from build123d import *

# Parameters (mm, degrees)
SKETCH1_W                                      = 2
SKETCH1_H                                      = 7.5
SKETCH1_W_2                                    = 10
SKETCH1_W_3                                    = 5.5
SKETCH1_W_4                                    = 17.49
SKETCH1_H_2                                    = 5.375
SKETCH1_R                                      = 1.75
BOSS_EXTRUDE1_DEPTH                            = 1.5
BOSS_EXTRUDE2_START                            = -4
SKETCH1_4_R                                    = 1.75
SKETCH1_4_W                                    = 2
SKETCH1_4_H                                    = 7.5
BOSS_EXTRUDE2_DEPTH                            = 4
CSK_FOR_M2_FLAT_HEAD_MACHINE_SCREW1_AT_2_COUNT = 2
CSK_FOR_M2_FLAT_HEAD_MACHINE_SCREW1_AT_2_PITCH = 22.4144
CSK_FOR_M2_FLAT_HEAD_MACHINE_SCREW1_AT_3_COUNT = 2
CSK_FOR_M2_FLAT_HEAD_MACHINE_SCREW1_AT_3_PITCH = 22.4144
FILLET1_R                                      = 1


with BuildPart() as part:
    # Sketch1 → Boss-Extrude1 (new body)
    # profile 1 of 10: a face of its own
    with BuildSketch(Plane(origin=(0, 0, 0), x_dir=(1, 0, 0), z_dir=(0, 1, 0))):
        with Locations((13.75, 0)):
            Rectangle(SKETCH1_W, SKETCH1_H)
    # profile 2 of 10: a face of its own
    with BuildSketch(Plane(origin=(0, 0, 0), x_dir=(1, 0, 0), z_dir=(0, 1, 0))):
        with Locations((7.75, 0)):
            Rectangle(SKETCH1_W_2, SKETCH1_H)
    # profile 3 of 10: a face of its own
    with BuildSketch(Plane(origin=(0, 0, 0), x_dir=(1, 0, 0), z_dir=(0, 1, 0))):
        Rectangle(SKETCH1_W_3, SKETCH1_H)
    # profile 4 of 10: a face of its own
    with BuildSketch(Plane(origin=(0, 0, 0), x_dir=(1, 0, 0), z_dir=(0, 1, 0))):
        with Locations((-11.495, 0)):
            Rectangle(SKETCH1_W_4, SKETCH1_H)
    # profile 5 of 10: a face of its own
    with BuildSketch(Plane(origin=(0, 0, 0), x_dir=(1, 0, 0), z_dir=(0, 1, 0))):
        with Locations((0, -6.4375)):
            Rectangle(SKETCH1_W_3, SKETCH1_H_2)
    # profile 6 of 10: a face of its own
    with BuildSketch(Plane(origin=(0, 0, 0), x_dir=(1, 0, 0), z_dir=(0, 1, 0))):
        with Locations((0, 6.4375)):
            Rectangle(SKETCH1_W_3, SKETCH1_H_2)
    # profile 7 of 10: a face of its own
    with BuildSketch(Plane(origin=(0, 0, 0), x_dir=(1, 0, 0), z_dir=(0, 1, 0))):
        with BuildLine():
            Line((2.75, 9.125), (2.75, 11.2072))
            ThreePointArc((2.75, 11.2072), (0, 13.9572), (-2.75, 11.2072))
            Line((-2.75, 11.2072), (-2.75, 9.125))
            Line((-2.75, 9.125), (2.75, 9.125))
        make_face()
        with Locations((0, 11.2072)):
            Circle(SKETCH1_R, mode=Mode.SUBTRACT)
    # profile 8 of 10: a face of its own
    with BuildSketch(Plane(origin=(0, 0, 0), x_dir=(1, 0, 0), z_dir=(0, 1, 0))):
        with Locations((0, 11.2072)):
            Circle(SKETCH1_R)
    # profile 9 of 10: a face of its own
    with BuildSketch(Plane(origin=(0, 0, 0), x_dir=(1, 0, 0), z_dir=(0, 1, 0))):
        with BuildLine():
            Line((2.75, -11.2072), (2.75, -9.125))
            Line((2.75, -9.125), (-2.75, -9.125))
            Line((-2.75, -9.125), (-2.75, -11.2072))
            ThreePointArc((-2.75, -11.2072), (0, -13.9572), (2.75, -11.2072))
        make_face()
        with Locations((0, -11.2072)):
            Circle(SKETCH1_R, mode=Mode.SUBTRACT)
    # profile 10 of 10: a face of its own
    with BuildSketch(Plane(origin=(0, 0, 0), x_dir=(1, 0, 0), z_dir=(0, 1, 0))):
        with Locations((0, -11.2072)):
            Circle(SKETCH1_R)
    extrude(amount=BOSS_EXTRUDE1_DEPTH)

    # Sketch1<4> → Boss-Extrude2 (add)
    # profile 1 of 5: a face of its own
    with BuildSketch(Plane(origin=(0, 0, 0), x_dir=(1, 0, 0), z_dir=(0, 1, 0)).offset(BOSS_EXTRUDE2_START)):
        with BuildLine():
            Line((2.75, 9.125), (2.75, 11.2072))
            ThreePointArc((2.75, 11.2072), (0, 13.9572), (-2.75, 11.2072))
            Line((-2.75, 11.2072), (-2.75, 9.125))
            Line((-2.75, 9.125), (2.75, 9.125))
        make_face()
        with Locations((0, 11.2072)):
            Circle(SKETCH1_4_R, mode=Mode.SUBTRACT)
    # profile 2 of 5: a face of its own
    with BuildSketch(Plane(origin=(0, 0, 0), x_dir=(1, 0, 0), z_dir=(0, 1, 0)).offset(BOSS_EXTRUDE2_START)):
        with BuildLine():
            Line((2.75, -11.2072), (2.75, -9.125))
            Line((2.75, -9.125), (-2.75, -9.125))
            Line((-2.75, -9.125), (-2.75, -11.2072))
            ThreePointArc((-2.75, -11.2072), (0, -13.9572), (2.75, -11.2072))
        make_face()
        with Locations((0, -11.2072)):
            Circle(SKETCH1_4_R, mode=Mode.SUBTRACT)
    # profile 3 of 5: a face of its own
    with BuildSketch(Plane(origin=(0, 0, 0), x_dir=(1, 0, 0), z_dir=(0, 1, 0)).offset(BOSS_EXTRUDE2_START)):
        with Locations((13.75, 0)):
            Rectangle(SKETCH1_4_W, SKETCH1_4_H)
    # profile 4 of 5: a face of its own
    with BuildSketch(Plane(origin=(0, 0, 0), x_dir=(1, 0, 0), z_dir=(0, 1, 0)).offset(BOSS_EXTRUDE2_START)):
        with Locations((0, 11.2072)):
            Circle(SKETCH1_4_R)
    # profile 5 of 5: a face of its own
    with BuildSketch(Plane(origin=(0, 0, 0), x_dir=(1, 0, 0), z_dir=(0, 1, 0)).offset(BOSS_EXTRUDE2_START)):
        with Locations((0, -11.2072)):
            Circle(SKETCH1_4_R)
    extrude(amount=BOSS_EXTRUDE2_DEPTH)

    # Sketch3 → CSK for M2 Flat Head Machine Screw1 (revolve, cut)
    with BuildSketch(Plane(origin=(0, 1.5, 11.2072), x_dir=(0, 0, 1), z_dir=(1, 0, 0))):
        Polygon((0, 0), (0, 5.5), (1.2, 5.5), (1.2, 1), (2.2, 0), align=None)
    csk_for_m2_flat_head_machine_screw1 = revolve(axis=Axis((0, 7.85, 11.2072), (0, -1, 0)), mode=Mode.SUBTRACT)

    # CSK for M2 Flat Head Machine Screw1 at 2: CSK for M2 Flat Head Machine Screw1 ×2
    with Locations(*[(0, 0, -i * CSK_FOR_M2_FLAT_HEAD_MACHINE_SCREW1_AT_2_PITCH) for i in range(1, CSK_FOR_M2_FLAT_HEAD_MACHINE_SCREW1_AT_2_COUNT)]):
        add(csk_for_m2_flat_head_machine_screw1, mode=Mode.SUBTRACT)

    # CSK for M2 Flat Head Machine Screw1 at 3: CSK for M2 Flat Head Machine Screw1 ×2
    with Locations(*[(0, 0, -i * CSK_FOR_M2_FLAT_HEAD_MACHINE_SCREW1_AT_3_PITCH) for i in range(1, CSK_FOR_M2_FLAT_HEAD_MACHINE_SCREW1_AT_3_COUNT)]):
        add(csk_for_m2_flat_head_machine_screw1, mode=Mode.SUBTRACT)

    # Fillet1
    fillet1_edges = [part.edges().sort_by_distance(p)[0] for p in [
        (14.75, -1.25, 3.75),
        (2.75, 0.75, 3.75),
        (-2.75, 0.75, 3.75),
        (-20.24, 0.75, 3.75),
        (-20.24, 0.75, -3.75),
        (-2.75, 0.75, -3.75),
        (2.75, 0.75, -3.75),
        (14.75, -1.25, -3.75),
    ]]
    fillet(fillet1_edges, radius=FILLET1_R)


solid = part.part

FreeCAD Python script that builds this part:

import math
import FreeCAD as App
import Part
import Sketcher
from FreeCAD import Vector
Q = App.Units.Quantity


def edges_at(feature, points):
    """Names of the edges that pass closest to the given points."""
    edges = feature.Shape.Edges
    near = lambda p: min(range(len(edges)), key=lambda i: edges[i].distToShape(Part.Vertex(*p))[0])
    return sorted({f"Edge{near(p) + 1}" for p in points})

doc = App.newDocument("Part")
body = doc.addObject("PartDesign::Body", "Body")

# Sketch on XZ plane
sketch1 = body.newObject("Sketcher::SketchObject", "Sketch")
sketch1.AttachmentSupport = (doc.getObject("XZ_Plane"), [""])
sketch1.MapMode = "FlatFace"
sketch1.addGeometry([
    Part.LineSegment(Vector(14.75, 3.75, 0), Vector(14.75, -3.75, 0)),  # 0
    Part.LineSegment(Vector(14.75, -3.75, 0), Vector(2.75, -3.75, 0)),  # 1
    Part.LineSegment(Vector(2.75, -3.75, 0), Vector(2.75, -11.2072, 0)),  # 2
    Part.ArcOfCircle(Part.Circle(Vector(0, -11.2072, 0), Vector(0, 0, 1), 2.75), math.radians(180), math.radians(360)),  # 3
    Part.LineSegment(Vector(-2.75, -11.2072, 0), Vector(-2.75, -3.75, 0)),  # 4
    Part.LineSegment(Vector(-2.75, -3.75, 0), Vector(-20.24, -3.75, 0)),  # 5
    Part.LineSegment(Vector(-20.24, -3.75, 0), Vector(-20.24, 3.75, 0)),  # 6
    Part.LineSegment(Vector(-20.24, 3.75, 0), Vector(-2.75, 3.75, 0)),  # 7
    Part.LineSegment(Vector(-2.75, 3.75, 0), Vector(-2.75, 11.2072, 0)),  # 8
    Part.ArcOfCircle(Part.Circle(Vector(0, 11.2072, 0), Vector(0, 0, 1), 2.75), math.radians(0), math.radians(180)),  # 9
    Part.LineSegment(Vector(2.75, 11.2072, 0), Vector(2.75, 3.75, 0)),  # 10
    Part.LineSegment(Vector(2.75, 3.75, 0), Vector(14.75, 3.75, 0)),  # 11
], False)
sketch1.addConstraint([
    Sketcher.Constraint("Coincident", 0, 2, 1, 1),
    Sketcher.Constraint("Coincident", 1, 2, 2, 1),
    Sketcher.Constraint("Tangent", 2, 2, 3, 2),
    Sketcher.Constraint("Tangent", 3, 1, 4, 1),
    Sketcher.Constraint("Coincident", 4, 2, 5, 1),
    Sketcher.Constraint("Coincident", 5, 2, 6, 1),
    Sketcher.Constraint("Coincident", 6, 2, 7, 1),
    Sketcher.Constraint("Coincident", 7, 2, 8, 1),
    Sketcher.Constraint("Tangent", 8, 2, 9, 2),
    Sketcher.Constraint("Tangent", 9, 1, 10, 1),
    Sketcher.Constraint("Coincident", 10, 2, 11, 1),
    Sketcher.Constraint("Coincident", 11, 2, 0, 1),
    Sketcher.Constraint("Vertical", 0),
    Sketcher.Constraint("Horizontal", 1),
    Sketcher.Constraint("Vertical", 2),
    Sketcher.Constraint("Vertical", 4),
    Sketcher.Constraint("Horizontal", 5),
    Sketcher.Constraint("Vertical", 6),
    Sketcher.Constraint("Horizontal", 7),
    Sketcher.Constraint("Vertical", 8),
    Sketcher.Constraint("Vertical", 10),
    Sketcher.Constraint("Horizontal", 11),
    Sketcher.Constraint("Equal", 3, 9),
    Sketcher.Constraint("Symmetric", 3, 3, 9, 3, -1, 1),
    Sketcher.Constraint("Symmetric", 1, 2, 4, 2, -2),
    Sketcher.Constraint("Horizontal", 7, 2, 10, 2),
    Sketcher.Constraint("Equal", 4, 8),
    Sketcher.Constraint("DistanceX", 1, 2, 1, 1, Q("12 mm")),
    Sketcher.Constraint("Radius", 3, Q("2.75 mm")),
    Sketcher.Constraint("DistanceY", 0, 2, 0, 1, Q("7.5 mm")),
    Sketcher.Constraint("DistanceX", 5, 2, 5, 1, Q("17.49 mm")),
    Sketcher.Constraint("DistanceY", 2, 2, 2, 1, Q("7.4572 mm")),
])
pad1 = body.newObject("PartDesign::Pad", "Pad")
pad1.Profile = sketch1
pad1.Length = 1.5
pad1.Reversed = True

# Sketch on XZ plane
sketch2 = body.newObject("Sketcher::SketchObject", "Sketch001")
sketch2.AttachmentSupport = (doc.getObject("XZ_Plane"), [""])
sketch2.MapMode = "FlatFace"
sketch2.AttachmentOffset = App.Placement(Vector(0, 0, 4), App.Rotation())
sketch2.addGeometry([
    Part.LineSegment(Vector(2.75, -9.125, 0), Vector(2.75, -11.2072, 0)),  # 0
    Part.ArcOfCircle(Part.Circle(Vector(0, -11.2072, 0), Vector(0, 0, 1), 2.75), math.radians(180), math.radians(360)),  # 1
    Part.LineSegment(Vector(-2.75, -11.2072, 0), Vector(-2.75, -9.125, 0)),  # 2
    Part.LineSegment(Vector(-2.75, -9.125, 0), Vector(2.75, -9.125, 0)),  # 3
    Part.LineSegment(Vector(2.75, 11.2072, 0), Vector(2.75, 9.125, 0)),  # 4
    Part.LineSegment(Vector(2.75, 9.125, 0), Vector(-2.75, 9.125, 0)),  # 5
    Part.LineSegment(Vector(-2.75, 9.125, 0), Vector(-2.75, 11.2072, 0)),  # 6
    Part.ArcOfCircle(Part.Circle(Vector(0, 11.2072, 0), Vector(0, 0, 1), 2.75), math.radians(0), math.radians(180)),  # 7
    Part.LineSegment(Vector(12.75, -3.75, 0), Vector(12.75, 3.75, 0)),  # 8
    Part.LineSegment(Vector(12.75, 3.75, 0), Vector(14.75, 3.75, 0)),  # 9
    Part.LineSegment(Vector(14.75, 3.75, 0), Vector(14.75, -3.75, 0)),  # 10
    Part.LineSegment(Vector(14.75, -3.75, 0), Vector(12.75, -3.75, 0)),  # 11
], False)
sketch2.addConstraint([
    Sketcher.Constraint("Tangent", 0, 2, 1, 2),
    Sketcher.Constraint("Tangent", 1, 1, 2, 1),
    Sketcher.Constraint("Coincident", 2, 2, 3, 1),
    Sketcher.Constraint("Coincident", 3, 2, 0, 1),
    Sketcher.Constraint("Coincident", 4, 2, 5, 1),
    Sketcher.Constraint("Coincident", 5, 2, 6, 1),
    Sketcher.Constraint("Tangent", 6, 2, 7, 2),
    Sketcher.Constraint("Tangent", 7, 1, 4, 1),
    Sketcher.Constraint("Coincident", 8, 2, 9, 1),
    Sketcher.Constraint("Coincident", 9, 2, 10, 1),
    Sketcher.Constraint("Coincident", 10, 2, 11, 1),
    Sketcher.Constraint("Coincident", 11, 2, 8, 1),
    Sketcher.Constraint("Vertical", 0),
    Sketcher.Constraint("Vertical", 2),
    Sketcher.Constraint("Horizontal", 3),
    Sketcher.Constraint("Vertical", 4),
    Sketcher.Constraint("Horizontal", 5),
    Sketcher.Constraint("Vertical", 6),
    Sketcher.Constraint("Vertical", 8),
    Sketcher.Constraint("Horizontal", 9),
    Sketcher.Constraint("Vertical", 10),
    Sketcher.Constraint("Horizontal", 11),
    Sketcher.Constraint("Equal", 1, 7),
    Sketcher.Constraint("Symmetric", 1, 3, 7, 3, -1, 1),
    Sketcher.Constraint("Symmetric", 3, 2, 4, 2, -1),
    Sketcher.Constraint("DistanceX", 9, 1, 9, 2, Q("2 mm")),
    Sketcher.Constraint("Radius", 1, Q("2.75 mm")),
    Sketcher.Constraint("DistanceY", 8, 1, 8, 2, Q("7.5 mm")),
    Sketcher.Constraint("DistanceX", 4, 2, 8, 2, Q("10 mm")),
    Sketcher.Constraint("DistanceY", -1, 1, 8, 2, Q("3.75 mm")),
    Sketcher.Constraint("DistanceY", 3, 2, 4, 2, Q("18.25 mm")),
    Sketcher.Constraint("DistanceY", 0, 2, 0, 1, Q("2.0822 mm")),
])
pad2 = body.newObject("PartDesign::Pad", "Pad001")
pad2.Profile = sketch2
pad2.Length = 4
pad2.Reversed = True

# Sketch on YZ plane
sketch3 = body.newObject("Sketcher::SketchObject", "Sketch002")
sketch3.AttachmentSupport = (doc.getObject("YZ_Plane"), [""])
sketch3.MapMode = "FlatFace"
sketch3.addGeometry([
    Part.LineSegment(Vector(-4, 11.2072, 0), Vector(1.5, 11.2072, 0)),  # 0
    Part.LineSegment(Vector(1.5, 11.2072, 0), Vector(1.5, 13.4072, 0)),  # 1
    Part.LineSegment(Vector(1.5, 13.4072, 0), Vector(0.5, 12.4072, 0)),  # 2
    Part.LineSegment(Vector(0.5, 12.4072, 0), Vector(-4, 12.4072, 0)),  # 3
    Part.LineSegment(Vector(-4, 12.4072, 0), Vector(-4, 11.2072, 0)),  # 4
], False)
sketch3.addGeometry(Part.LineSegment(Vector(1.5, 11.2072, 0), Vector(-4, 11.2072, 0)), True)  # axis
sketch3.addConstraint([
    Sketcher.Constraint("Coincident", 0, 2, 1, 1),
    Sketcher.Constraint("Coincident", 1, 2, 2, 1),
    Sketcher.Constraint("Coincident", 2, 2, 3, 1),
    Sketcher.Constraint("Coincident", 3, 2, 4, 1),
    Sketcher.Constraint("Coincident", 4, 2, 0, 1),
    Sketcher.Constraint("Horizontal", 0),
    Sketcher.Constraint("Vertical", 1),
    Sketcher.Constraint("Horizontal", 3),
    Sketcher.Constraint("Vertical", 4),
    Sketcher.Constraint("Horizontal", 5),
    Sketcher.Constraint("Coincident", 5, 1, 0, 2),
    Sketcher.Constraint("Vertical", 3, 2, 5, 2),
    Sketcher.Constraint("Angle", 2, Q("-135 deg")),
    Sketcher.Constraint("DistanceX", 0, 1, 0, 2, Q("5.5 mm")),
    Sketcher.Constraint("DistanceX", 3, 2, 3, 1, Q("4.5 mm")),
    Sketcher.Constraint("DistanceY", 1, 1, 1, 2, Q("2.2 mm")),
    Sketcher.Constraint("DistanceX", 3, 2, -1, 1, Q("4 mm")),
    Sketcher.Constraint("DistanceY", -1, 1, 0, 2, Q("11.2072 mm")),
])
groove = body.newObject("PartDesign::Groove", "Groove")
groove.Profile = sketch3
groove.ReferenceAxis = (sketch3, ["Axis0"])
groove.Angle = 360
doc.recompute()

linearpattern = body.newObject("PartDesign::LinearPattern", "LinearPattern")
linearpattern.Originals = [groove]
linearpattern.Direction = (doc.getObject("Z_Axis"), [""])
linearpattern.Mode = "offset"
linearpattern.Offset = 22.4144
linearpattern.Occurrences = 2
linearpattern.Reversed = True
body.Tip = linearpattern
doc.recompute()

linearpattern2 = body.newObject("PartDesign::LinearPattern", "LinearPattern001")
linearpattern2.Originals = [groove]
linearpattern2.Direction = (doc.getObject("Z_Axis"), [""])
linearpattern2.Mode = "offset"
linearpattern2.Offset = 22.4144
linearpattern2.Occurrences = 2
linearpattern2.Reversed = True
body.Tip = linearpattern2
doc.recompute()

fillet = body.newObject("PartDesign::Fillet", "Fillet")
fillet.Base = (linearpattern2, edges_at(linearpattern2, [
    (14.75, -1.25, 3.75),
    (2.75, 0.75, 3.75),
    (-2.75, 0.75, 3.75),
    (-20.24, 0.75, 3.75),
    (-20.24, 0.75, -3.75),
    (-2.75, 0.75, -3.75),
    (2.75, 0.75, -3.75),
    (14.75, -1.25, -3.75),
]))
fillet.Radius = 1

doc.recompute()
